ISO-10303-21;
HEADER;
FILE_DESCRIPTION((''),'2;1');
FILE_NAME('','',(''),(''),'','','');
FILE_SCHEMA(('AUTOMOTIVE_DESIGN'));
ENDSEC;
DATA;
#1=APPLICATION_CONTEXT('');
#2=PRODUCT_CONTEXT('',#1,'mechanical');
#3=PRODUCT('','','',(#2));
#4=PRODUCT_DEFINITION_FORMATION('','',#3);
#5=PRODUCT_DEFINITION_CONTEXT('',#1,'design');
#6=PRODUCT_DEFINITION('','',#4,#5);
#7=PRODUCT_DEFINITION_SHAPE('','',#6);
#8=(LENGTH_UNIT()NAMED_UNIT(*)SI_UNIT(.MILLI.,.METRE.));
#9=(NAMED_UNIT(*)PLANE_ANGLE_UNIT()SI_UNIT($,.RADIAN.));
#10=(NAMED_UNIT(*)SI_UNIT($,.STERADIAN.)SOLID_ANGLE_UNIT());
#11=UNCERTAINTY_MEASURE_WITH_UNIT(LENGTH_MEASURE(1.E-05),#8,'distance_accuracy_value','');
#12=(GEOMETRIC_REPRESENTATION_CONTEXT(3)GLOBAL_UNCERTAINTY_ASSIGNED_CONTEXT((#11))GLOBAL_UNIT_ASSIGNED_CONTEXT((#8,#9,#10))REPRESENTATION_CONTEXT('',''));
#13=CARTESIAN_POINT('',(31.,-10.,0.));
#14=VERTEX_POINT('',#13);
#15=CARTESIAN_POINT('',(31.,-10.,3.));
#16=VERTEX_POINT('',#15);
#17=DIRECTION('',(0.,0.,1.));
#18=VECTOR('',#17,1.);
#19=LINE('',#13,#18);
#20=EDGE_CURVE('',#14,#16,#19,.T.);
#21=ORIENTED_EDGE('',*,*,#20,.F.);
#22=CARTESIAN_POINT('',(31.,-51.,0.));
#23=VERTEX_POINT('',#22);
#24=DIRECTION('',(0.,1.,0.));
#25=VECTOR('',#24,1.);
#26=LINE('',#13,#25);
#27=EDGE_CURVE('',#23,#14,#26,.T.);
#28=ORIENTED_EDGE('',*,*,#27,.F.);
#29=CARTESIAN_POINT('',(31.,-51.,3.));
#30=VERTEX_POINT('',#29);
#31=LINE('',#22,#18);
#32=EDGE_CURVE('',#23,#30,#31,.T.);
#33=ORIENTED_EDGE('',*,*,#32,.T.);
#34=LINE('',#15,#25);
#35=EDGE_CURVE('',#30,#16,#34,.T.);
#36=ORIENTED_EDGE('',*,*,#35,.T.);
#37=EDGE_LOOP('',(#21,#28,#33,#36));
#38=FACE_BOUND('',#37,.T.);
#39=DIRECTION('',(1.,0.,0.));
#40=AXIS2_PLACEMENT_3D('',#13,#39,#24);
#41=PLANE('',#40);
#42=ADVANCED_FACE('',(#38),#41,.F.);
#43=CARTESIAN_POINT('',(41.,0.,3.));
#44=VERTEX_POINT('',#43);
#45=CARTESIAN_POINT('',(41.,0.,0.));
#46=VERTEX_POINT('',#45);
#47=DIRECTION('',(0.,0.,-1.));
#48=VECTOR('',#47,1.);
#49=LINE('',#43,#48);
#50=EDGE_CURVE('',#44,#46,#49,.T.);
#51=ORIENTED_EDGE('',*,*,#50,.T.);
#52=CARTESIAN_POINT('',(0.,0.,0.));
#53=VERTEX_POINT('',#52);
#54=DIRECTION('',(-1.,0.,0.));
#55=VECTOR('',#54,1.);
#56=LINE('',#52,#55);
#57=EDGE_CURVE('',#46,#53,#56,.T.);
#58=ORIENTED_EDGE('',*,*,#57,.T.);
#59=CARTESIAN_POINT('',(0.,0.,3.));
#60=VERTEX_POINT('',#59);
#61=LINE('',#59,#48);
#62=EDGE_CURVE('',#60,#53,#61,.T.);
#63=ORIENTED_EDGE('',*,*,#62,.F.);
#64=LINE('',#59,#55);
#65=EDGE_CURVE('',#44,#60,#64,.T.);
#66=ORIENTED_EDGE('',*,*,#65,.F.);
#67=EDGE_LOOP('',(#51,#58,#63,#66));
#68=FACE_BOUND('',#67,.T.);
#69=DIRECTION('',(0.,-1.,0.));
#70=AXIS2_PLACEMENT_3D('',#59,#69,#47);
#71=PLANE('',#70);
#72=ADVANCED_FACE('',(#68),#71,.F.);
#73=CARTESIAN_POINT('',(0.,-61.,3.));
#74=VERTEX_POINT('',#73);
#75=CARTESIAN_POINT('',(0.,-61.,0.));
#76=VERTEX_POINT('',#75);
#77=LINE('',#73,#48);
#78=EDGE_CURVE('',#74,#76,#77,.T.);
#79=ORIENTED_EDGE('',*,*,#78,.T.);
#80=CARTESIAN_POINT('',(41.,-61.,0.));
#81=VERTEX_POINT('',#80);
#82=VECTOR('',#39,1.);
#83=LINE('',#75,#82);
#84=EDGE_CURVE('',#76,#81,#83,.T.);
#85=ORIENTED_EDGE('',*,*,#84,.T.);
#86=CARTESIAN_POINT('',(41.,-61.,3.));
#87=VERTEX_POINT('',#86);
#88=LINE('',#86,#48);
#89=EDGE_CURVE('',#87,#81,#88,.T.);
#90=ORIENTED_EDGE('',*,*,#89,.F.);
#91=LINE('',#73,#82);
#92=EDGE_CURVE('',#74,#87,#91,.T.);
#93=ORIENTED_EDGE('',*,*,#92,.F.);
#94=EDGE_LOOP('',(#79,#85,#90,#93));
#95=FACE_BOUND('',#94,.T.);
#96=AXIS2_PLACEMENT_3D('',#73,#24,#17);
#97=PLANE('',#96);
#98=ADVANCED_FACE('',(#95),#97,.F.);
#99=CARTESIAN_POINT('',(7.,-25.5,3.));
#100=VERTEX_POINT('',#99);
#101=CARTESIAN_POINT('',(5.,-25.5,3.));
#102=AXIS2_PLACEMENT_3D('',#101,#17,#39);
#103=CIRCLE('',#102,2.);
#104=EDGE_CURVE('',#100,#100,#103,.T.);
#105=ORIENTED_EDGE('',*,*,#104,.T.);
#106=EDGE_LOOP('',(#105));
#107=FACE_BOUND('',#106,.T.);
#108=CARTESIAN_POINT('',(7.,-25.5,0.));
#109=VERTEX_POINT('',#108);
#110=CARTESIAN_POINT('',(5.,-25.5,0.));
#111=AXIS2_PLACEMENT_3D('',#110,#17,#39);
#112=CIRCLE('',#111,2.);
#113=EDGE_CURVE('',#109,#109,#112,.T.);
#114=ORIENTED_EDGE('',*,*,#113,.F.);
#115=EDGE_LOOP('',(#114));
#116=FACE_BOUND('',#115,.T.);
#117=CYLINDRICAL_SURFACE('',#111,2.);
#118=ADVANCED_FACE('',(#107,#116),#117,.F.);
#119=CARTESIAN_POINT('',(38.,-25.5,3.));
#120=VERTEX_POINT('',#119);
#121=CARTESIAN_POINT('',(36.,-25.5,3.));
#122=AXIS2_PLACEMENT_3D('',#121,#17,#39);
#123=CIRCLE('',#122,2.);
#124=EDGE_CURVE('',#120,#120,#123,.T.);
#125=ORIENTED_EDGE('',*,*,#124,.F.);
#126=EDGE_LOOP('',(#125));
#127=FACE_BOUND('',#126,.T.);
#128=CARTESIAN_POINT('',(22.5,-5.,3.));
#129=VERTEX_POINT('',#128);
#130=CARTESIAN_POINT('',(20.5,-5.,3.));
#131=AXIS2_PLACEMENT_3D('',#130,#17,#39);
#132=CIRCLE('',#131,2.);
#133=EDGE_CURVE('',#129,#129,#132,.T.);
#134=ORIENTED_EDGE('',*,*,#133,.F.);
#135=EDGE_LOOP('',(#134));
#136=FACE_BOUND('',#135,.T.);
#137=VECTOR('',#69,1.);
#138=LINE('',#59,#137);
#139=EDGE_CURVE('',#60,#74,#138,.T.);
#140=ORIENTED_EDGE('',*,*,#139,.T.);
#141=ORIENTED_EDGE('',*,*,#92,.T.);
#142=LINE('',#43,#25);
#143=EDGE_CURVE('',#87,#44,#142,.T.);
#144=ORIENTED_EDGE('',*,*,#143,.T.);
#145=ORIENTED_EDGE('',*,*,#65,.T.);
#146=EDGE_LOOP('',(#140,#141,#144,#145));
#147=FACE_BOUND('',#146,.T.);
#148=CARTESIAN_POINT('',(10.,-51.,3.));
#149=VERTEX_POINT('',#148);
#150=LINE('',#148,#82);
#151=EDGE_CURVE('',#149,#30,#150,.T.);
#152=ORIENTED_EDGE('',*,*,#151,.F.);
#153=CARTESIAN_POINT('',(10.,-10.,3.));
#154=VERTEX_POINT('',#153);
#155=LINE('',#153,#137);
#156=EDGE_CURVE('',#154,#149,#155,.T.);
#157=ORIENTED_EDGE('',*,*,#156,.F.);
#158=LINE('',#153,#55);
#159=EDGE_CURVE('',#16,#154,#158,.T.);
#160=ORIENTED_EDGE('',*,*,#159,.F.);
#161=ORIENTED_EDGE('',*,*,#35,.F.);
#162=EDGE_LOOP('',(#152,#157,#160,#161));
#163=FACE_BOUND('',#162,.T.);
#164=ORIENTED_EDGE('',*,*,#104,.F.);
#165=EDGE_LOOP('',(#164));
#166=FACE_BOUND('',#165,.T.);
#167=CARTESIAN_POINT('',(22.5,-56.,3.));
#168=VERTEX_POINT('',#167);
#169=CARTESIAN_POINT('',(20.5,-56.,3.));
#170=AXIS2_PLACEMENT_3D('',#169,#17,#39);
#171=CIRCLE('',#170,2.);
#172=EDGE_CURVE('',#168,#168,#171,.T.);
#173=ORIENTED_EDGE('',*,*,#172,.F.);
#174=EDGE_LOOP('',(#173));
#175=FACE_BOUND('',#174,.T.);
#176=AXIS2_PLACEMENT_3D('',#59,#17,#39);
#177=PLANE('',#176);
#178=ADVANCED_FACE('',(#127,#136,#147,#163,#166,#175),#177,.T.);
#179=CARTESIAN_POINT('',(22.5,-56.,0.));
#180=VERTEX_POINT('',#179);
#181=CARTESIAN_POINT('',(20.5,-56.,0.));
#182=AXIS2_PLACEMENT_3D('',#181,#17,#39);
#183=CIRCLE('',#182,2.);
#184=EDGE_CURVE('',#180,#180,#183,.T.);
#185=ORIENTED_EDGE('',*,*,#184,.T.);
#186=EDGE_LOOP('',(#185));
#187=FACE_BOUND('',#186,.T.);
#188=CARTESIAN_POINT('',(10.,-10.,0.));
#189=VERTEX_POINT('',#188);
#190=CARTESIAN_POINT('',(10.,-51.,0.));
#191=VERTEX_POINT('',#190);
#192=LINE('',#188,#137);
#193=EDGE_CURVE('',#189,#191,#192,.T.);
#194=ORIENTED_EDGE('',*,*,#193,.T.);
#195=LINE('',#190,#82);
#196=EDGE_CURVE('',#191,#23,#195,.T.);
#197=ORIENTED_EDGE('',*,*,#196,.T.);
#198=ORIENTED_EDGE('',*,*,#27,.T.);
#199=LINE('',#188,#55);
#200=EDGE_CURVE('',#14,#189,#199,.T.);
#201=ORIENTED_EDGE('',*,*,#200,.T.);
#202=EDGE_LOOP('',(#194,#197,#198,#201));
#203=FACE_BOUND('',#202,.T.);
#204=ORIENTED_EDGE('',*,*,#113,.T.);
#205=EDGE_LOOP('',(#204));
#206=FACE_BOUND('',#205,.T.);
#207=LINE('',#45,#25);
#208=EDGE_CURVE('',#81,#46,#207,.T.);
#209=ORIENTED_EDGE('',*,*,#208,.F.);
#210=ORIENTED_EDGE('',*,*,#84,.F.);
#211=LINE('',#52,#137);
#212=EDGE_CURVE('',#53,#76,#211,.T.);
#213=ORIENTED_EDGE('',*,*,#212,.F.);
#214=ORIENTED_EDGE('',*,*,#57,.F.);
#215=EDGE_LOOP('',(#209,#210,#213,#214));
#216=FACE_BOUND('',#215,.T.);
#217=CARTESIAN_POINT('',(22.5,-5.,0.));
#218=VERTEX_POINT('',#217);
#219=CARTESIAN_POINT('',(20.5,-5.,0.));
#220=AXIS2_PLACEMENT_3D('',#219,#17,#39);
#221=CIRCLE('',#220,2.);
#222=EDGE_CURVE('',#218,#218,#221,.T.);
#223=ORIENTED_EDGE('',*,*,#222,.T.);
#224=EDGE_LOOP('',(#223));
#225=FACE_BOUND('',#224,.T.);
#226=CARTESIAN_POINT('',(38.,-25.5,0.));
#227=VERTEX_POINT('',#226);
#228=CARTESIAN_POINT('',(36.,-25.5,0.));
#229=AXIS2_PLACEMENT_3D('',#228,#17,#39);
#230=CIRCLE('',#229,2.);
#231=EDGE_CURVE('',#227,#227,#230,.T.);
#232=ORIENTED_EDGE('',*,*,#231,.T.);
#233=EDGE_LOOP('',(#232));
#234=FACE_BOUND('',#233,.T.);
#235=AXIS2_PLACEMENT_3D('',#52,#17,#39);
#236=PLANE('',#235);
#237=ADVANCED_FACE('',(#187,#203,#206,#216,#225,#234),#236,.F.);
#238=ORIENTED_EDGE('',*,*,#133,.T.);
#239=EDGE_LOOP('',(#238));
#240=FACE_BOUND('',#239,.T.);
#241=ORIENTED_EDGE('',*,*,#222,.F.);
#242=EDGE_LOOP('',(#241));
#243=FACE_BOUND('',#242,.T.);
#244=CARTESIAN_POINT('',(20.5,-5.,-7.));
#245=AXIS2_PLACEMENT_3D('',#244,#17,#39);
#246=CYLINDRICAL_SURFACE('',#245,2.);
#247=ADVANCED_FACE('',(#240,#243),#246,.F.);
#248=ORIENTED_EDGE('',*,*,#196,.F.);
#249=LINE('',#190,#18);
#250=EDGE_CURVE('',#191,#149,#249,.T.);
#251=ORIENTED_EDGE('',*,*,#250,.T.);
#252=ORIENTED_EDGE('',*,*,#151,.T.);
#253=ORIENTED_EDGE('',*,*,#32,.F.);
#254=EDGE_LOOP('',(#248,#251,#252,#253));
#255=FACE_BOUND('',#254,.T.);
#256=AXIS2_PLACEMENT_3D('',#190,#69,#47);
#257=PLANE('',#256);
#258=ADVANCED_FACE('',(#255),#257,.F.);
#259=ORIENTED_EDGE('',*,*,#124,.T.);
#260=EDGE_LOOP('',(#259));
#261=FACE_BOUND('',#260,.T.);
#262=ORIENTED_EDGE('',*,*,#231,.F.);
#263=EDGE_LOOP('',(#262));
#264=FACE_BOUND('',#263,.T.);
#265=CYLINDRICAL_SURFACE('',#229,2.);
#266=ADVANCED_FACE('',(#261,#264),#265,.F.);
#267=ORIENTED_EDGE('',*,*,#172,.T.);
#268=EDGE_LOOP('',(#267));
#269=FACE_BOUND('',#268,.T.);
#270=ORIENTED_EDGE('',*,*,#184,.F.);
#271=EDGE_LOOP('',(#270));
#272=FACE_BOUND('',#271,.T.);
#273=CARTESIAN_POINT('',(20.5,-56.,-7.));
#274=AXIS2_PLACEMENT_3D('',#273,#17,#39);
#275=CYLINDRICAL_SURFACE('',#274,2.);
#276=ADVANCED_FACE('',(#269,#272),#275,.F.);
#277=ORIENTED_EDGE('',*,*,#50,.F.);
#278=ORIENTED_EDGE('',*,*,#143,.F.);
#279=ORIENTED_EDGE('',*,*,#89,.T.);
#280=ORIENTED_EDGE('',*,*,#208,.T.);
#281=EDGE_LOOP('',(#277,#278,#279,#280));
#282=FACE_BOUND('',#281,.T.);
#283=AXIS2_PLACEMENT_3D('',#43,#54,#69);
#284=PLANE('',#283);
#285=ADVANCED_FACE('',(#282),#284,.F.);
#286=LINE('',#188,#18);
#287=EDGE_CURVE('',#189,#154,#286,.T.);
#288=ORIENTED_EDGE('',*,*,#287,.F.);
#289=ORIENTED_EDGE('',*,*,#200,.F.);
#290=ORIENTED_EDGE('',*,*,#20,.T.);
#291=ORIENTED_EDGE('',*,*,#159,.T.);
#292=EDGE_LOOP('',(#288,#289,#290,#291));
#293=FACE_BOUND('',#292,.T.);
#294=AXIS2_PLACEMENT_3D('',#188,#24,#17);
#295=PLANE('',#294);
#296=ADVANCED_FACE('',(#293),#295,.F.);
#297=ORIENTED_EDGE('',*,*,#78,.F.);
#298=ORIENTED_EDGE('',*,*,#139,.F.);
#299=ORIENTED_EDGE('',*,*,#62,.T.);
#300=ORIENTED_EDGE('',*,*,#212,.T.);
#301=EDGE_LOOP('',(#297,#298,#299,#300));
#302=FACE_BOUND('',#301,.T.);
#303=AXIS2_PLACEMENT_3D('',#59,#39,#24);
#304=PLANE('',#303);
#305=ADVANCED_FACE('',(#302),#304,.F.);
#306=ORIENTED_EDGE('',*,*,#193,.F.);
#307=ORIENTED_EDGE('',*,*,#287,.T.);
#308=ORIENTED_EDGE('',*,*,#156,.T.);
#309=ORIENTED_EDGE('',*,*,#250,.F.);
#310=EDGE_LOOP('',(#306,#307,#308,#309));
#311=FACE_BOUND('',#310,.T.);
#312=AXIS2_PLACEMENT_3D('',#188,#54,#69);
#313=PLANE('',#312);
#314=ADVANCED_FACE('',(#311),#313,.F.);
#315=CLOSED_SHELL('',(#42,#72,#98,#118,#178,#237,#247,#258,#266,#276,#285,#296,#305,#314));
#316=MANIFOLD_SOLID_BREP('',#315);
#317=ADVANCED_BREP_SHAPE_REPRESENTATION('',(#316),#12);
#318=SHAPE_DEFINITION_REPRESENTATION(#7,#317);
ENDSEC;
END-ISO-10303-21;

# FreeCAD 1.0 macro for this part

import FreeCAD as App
import Part
import Sketcher
from FreeCAD import Vector
Q = App.Units.Quantity

doc = App.newDocument("Part")
body = doc.addObject("PartDesign::Body", "Body")

# Sketch on XY plane
sketch1 = body.newObject("Sketcher::SketchObject", "Sketch")
sketch1.AttachmentSupport = (doc.getObject("XY_Plane"), [""])
sketch1.MapMode = "FlatFace"
sketch1.addGeometry([
    Part.LineSegment(Vector(0, 0, 0), Vector(0, -61, 0)),
    Part.LineSegment(Vector(0, -61, 0), Vector(41, -61, 0)),
    Part.LineSegment(Vector(41, -61, 0), Vector(41, 0, 0)),
    Part.LineSegment(Vector(41, 0, 0), Vector(0, 0, 0)),
], False)
sketch1.addConstraint([
    Sketcher.Constraint("Coincident", 0, 2, 1, 1),
    Sketcher.Constraint("Coincident", 1, 2, 2, 1),
    Sketcher.Constraint("Coincident", 2, 2, 3, 1),
    Sketcher.Constraint("Coincident", 3, 2, 0, 1),
    Sketcher.Constraint("Vertical", 0),
    Sketcher.Constraint("Horizontal", 1),
    Sketcher.Constraint("Vertical", 2),
    Sketcher.Constraint("Horizontal", 3),
    Sketcher.Constraint("Coincident", 3, 2, -1, 1),
    Sketcher.Constraint("DistanceX", 1, 1, 1, 2, Q("41 mm")),
    Sketcher.Constraint("DistanceY", 0, 2, 0, 1, Q("61 mm")),
])
pad1 = body.newObject("PartDesign::Pad", "Pad")
pad1.Profile = sketch1
pad1.Length = 3

# Sketch on XY plane
sketch2 = body.newObject("Sketcher::SketchObject", "Sketch001")
sketch2.AttachmentSupport = (doc.getObject("XY_Plane"), [""])
sketch2.MapMode = "FlatFace"
sketch2.AttachmentOffset = App.Placement(Vector(0, 0, 3), App.Rotation())
sketch2.addGeometry([
    Part.LineSegment(Vector(10, -10, 0), Vector(10, -51, 0)),
    Part.LineSegment(Vector(10, -51, 0), Vector(31, -51, 0)),
    Part.LineSegment(Vector(31, -51, 0), Vector(31, -10, 0)),
    Part.LineSegment(Vector(31, -10, 0), Vector(10, -10, 0)),
], False)
sketch2.addConstraint([
    Sketcher.Constraint("Coincident", 0, 2, 1, 1),
    Sketcher.Constraint("Coincident", 1, 2, 2, 1),
    Sketcher.Constraint("Coincident", 2, 2, 3, 1),
    Sketcher.Constraint("Coincident", 3, 2, 0, 1),
    Sketcher.Constraint("Vertical", 0),
    Sketcher.Constraint("Horizontal", 1),
    Sketcher.Constraint("Vertical", 2),
    Sketcher.Constraint("Horizontal", 3),
    Sketcher.Constraint("DistanceX", 1, 1, 1, 2, Q("21 mm")),
    Sketcher.Constraint("DistanceY", 0, 2, 0, 1, Q("41 mm")),
    Sketcher.Constraint("DistanceX", -1, 1, 0, 2, Q("10 mm")),
    Sketcher.Constraint("DistanceY", 0, 2, -1, 1, Q("51 mm")),
])
pocket1 = body.newObject("PartDesign::Pocket", "Pocket")
pocket1.Profile = sketch2
pocket1.Length = 3

# Sketch on XY plane
sketch3 = body.newObject("Sketcher::SketchObject", "Sketch002")
sketch3.AttachmentSupport = (doc.getObject("XY_Plane"), [""])
sketch3.MapMode = "FlatFace"
sketch3.AttachmentOffset = App.Placement(Vector(0, 0, 3), App.Rotation())
sketch3.addGeometry([
    Part.Circle(Vector(36, -25.5, 0), Vector(0, 0, 1), 2),
    Part.Circle(Vector(5, -25.5, 0), Vector(0, 0, 1), 2),
], False)
sketch3.addConstraint([
    Sketcher.Constraint("Equal", 0, 1),
    Sketcher.Constraint("Horizontal", 0, 3, 1, 3),
    Sketcher.Constraint("Diameter", 0, Q("4 mm")),
    Sketcher.Constraint("DistanceX", -1, 1, 0, 3, Q("36 mm")),
    Sketcher.Constraint("DistanceX", -1, 1, 1, 3, Q("5 mm")),
    Sketcher.Constraint("DistanceY", 0, 3, -1, 1, Q("25.5 mm")),
])
pocket2 = body.newObject("PartDesign::Pocket", "Pocket001")
pocket2.Profile = sketch3
pocket2.Length = 3

# Sketch on XY plane
sketch4 = body.newObject("Sketcher::SketchObject", "Sketch003")
sketch4.AttachmentSupport = (doc.getObject("XY_Plane"), [""])
sketch4.MapMode = "FlatFace"
sketch4.AttachmentOffset = App.Placement(Vector(0, 0, 3), App.Rotation())
sketch4.addGeometry([
    Part.Circle(Vector(20.5, -5, 0), Vector(0, 0, 1), 2),
    Part.Circle(Vector(20.5, -56, 0), Vector(0, 0, 1), 2),
], False)
sketch4.addConstraint([
    Sketcher.Constraint("Equal", 0, 1),
    Sketcher.Constraint("Vertical", 0, 3, 1, 3),
    Sketcher.Constraint("Diameter", 0, Q("4 mm")),
    Sketcher.Constraint("DistanceY", 0, 3, -1, 1, Q("5 mm")),
    Sketcher.Constraint("DistanceY", 1, 3, -1, 1, Q("56 mm")),
    Sketcher.Constraint("DistanceX", -1, 1, 0, 3, Q("20.5 mm")),
])
pocket3 = body.newObject("PartDesign::Pocket", "Pocket002")
pocket3.Profile = sketch4
pocket3.Length = 10

doc.recompute()
